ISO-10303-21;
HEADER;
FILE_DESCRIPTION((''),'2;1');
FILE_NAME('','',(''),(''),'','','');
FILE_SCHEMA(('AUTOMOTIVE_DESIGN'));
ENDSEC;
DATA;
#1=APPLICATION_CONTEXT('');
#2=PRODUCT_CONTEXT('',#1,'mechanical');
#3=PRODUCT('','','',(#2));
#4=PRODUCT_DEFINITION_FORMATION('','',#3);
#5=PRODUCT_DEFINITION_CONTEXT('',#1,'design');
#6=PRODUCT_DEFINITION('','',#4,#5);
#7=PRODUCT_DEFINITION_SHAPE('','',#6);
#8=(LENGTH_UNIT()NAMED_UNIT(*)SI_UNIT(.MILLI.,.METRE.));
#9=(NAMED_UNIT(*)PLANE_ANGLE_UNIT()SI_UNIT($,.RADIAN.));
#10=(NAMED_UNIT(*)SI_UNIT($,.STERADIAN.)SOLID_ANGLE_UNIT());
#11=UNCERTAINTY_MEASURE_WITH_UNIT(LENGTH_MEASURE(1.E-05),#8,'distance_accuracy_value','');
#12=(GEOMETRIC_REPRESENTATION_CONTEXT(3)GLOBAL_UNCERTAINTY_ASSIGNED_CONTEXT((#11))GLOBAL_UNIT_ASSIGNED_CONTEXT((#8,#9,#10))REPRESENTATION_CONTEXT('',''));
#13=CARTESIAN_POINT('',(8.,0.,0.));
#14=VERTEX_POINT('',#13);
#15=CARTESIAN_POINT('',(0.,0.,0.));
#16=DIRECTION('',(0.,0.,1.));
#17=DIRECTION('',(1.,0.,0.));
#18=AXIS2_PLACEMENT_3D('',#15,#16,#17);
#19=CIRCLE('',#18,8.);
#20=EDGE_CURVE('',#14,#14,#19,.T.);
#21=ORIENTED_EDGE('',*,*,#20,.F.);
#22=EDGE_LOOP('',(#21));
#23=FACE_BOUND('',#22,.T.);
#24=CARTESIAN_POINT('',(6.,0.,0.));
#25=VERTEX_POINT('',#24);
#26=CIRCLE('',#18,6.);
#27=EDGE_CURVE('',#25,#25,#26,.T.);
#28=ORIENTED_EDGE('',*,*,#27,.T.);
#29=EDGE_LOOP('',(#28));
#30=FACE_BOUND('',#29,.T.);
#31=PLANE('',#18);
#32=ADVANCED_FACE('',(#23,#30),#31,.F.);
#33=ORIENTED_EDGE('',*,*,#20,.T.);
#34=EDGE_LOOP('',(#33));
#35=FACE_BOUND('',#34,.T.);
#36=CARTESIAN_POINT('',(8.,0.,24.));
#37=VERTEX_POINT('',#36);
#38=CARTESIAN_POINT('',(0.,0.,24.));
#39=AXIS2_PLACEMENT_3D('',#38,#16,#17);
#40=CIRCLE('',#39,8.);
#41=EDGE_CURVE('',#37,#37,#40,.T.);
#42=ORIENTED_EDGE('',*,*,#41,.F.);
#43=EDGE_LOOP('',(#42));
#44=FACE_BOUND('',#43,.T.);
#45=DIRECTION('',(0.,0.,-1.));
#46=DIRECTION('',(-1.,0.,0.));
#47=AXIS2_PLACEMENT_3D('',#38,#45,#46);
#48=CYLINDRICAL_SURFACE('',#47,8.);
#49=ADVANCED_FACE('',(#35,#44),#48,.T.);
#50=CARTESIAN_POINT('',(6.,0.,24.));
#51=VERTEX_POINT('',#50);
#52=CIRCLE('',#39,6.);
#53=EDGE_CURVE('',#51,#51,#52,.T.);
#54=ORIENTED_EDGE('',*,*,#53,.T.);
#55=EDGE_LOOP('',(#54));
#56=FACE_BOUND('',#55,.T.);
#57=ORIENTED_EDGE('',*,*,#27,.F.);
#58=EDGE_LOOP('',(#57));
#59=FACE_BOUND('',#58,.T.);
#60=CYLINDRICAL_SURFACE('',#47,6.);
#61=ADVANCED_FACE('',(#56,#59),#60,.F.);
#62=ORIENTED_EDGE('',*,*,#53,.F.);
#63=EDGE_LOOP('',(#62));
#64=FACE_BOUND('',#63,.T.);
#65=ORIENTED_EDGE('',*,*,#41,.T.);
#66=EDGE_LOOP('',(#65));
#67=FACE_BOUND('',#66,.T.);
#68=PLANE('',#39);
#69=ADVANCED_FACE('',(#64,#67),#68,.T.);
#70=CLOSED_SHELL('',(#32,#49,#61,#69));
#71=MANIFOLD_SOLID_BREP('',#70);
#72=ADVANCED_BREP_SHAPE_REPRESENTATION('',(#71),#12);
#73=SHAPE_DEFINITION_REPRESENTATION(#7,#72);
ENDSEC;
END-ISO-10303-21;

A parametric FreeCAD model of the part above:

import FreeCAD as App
import Part
import Sketcher

V = App.Vector

doc = App.newDocument("Part")
body = doc.addObject("PartDesign::Body", "Body")

# Sketch on XY plane
sketch1 = body.newObject("Sketcher::SketchObject", "Sketch")
sketch1.AttachmentSupport = (doc.getObject("XY_Plane"), [""])
sketch1.MapMode = "FlatFace"
sketch1.addGeometry(Part.Circle(V(0, 0, 0), V(0, 0, 1), 8), False)
sketch1.addGeometry(Part.Circle(V(0, 0, 0), V(0, 0, 1), 6), False)
sketch1.addConstraint(Sketcher.Constraint("Coincident", 0, 3, -1, 1))
sketch1.addConstraint(Sketcher.Constraint("Coincident", 1, 3, -1, 1))
sketch1.addConstraint(Sketcher.Constraint("Diameter", 0, 16.0))
sketch1.addConstraint(Sketcher.Constraint("Diameter", 1, 12.0))
pad1 = body.newObject("PartDesign::Pad", "Pad")
pad1.Profile = sketch1
pad1.Length = 24

doc.recompute()
